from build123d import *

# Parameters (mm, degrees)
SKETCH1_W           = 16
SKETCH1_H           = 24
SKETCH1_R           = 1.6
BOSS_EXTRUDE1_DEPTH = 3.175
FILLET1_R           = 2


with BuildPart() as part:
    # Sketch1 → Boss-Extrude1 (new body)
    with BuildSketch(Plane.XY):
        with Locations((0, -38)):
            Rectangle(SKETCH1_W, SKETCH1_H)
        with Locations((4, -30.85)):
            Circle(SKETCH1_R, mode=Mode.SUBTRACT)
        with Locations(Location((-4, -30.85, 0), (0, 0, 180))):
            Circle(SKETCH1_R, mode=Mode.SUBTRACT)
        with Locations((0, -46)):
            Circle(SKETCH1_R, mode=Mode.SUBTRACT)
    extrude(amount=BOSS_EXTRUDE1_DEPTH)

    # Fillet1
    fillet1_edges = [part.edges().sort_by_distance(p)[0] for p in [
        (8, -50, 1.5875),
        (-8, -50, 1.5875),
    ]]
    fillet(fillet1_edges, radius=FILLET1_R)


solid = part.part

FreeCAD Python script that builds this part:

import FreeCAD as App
import Part
import Sketcher


def edges_at(feature, points):
    """Names of the edges that pass closest to the given points."""
    edges = feature.Shape.Edges
    near = lambda p: min(range(len(edges)), key=lambda i: edges[i].distToShape(Part.Vertex(*p))[0])
    return sorted({f"Edge{near(p) + 1}" for p in points})


def add_polygon(sketch, points):
    """Adds a closed chain of lines whose ends are joined by coincident constraints."""
    first, n = sketch.GeometryCount, len(points)
    for a, b in zip(points, points[1:] + points[:1]):
        sketch.addGeometry(Part.LineSegment(App.Vector(*a, 0), App.Vector(*b, 0)), False)
    for i in range(n):
        sketch.addConstraint(Sketcher.Constraint("Coincident", first + i, 2, first + (i + 1) % n, 1))

doc = App.newDocument("Part")
params = doc.addObject("Spreadsheet::Sheet", "Params")
for row, (alias, value) in enumerate([
    ("sketch1_diameter", "3.2 mm"),
    ("sketch1_width", "16 mm"),
    ("sketch1_height", "24 mm"),
    ("pad1_length", "3.175 mm"),
    ("fillet_radius", "2 mm"),
], start=1):
    params.set(f"A{row}", alias)
    params.set(f"B{row}", "=" + value)
    params.setAlias(f"B{row}", alias)

body = doc.addObject("PartDesign::Body", "Body")

sketch1 = doc.addObject("Sketcher::SketchObject", "Sketch")
body.addObject(sketch1)
sketch1.AttachmentSupport = (doc.XY_Plane, [""])
sketch1.MapMode = "FlatFace"
add_polygon(sketch1, [(-8, -26), (-8, -50), (8, -50), (8, -26)])
sketch1.addGeometry(Part.Circle(App.Vector(0, -46, 0), App.Vector(0, 0, 1), 1.6), False)
sketch1.addGeometry(Part.Circle(App.Vector(-4, -30.9, 0), App.Vector(0, 0, 1), 1.6), False)
sketch1.addGeometry(Part.Circle(App.Vector(4, -30.9, 0), App.Vector(0, 0, 1), 1.6), False)
sketch1.addConstraint([
    Sketcher.Constraint("Vertical", 0),
    Sketcher.Constraint("Horizontal", 1),
    Sketcher.Constraint("Vertical", 2),
    Sketcher.Constraint("Horizontal", 3),
    Sketcher.Constraint("Equal", 4, 5),
    Sketcher.Constraint("Equal", 5, 6),
    Sketcher.Constraint("Symmetric", 5, 3, 6, 3, -2),
    Sketcher.Constraint("PointOnObject", 4, 3, -2),
    Sketcher.Constraint("Diameter", 4, 3.2),
    Sketcher.Constraint("DistanceX", 1, 1, 1, 2, 16.0),
    Sketcher.Constraint("DistanceY", 0, 2, 0, 1, 24.0),
    Sketcher.Constraint("DistanceY", 4, 3, -1, 1, 46.0),
    Sketcher.Constraint("DistanceX", 5, 3, -1, 1, 4.0),
    Sketcher.Constraint("DistanceX", 0, 2, -1, 1, 8.0),
    Sketcher.Constraint("DistanceY", 0, 2, -1, 1, 50.0),
    Sketcher.Constraint("DistanceY", 5, 3, -1, 1, 30.85),
])
sketch1.setExpression("Constraints[12]", "Params.sketch1_diameter")
sketch1.setExpression("Constraints[13]", "Params.sketch1_width")
sketch1.setExpression("Constraints[14]", "Params.sketch1_height")
pad1 = doc.addObject("PartDesign::Pad", "Pad")
body.addObject(pad1)
pad1.Profile = sketch1
pad1.setExpression("Length", "Params.pad1_length")
doc.recompute()

fillet = doc.addObject("PartDesign::Fillet", "Fillet")
body.addObject(fillet)
fillet.Base = (pad1, edges_at(pad1, [(8, -50, 1.587), (-8, -50, 1.587)]))
fillet.setExpression("Radius", "Params.fillet_radius")

doc.recompute()
